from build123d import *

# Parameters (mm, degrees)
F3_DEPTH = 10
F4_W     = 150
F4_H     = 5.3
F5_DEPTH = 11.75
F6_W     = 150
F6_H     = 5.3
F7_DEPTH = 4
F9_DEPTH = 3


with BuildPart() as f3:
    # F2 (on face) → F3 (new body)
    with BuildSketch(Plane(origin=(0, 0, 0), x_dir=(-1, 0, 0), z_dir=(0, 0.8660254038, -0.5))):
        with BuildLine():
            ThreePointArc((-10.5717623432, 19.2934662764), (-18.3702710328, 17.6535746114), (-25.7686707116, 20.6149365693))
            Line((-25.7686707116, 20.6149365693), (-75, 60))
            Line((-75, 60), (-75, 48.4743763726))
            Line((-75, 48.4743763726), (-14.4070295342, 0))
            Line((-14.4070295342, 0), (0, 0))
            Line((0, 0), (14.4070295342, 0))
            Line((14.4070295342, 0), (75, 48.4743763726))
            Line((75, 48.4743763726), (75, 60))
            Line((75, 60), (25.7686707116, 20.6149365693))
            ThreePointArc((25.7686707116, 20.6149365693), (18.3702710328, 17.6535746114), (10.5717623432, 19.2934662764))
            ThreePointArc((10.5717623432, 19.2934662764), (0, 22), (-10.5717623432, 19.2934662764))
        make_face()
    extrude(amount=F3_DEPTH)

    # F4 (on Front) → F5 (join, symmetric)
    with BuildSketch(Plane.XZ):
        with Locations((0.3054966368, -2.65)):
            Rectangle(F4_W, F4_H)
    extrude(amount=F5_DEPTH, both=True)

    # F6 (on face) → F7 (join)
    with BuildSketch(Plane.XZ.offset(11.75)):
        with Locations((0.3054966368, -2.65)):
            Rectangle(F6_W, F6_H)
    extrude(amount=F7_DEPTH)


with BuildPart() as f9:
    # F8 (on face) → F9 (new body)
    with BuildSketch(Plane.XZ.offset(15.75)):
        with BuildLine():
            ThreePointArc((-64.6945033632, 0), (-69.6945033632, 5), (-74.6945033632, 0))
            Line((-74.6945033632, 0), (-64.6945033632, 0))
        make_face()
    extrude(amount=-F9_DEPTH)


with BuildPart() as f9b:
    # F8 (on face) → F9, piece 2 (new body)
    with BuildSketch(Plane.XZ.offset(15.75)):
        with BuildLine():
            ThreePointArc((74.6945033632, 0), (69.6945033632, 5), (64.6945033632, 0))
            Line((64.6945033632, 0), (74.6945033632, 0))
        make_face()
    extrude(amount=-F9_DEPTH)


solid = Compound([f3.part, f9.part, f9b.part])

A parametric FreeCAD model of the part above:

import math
import FreeCAD as App
import Part
import Sketcher

V = App.Vector
Q = App.Units.Quantity


def add_polygon(sketch, points):
    """Adds a closed chain of lines whose ends are joined by coincident constraints."""
    first, n = sketch.GeometryCount, len(points)
    for a, b in zip(points, points[1:] + points[:1]):
        sketch.addGeometry(Part.LineSegment(App.Vector(*a, 0), App.Vector(*b, 0)), False)
    for i in range(n):
        sketch.addConstraint(Sketcher.Constraint("Coincident", first + i, 2, first + (i + 1) % n, 1))

doc = App.newDocument("Part")
body = doc.addObject("PartDesign::Body", "Body")

sketch1 = doc.addObject("Sketcher::SketchObject", "Sketch")
body.addObject(sketch1)
sketch1.Placement = App.Placement(V(0, 0, 0), App.Rotation(V(-1, 0, 0), V(0, 0.5, 0.866025404), V(0, 0.866025404, -0.5), "ZXY"))
sketch1.addGeometry(Part.ArcOfCircle(Part.Circle(V(-17, 31, 0), V(0, 0, 1), 14), math.radians(-129), math.radians(-61)), False)
sketch1.addGeometry(Part.LineSegment(V(-26, 21, 0), V(-75, 60, 0)), False)
sketch1.addGeometry(Part.LineSegment(V(-75, 60, 0), V(-75, 48, 0)), False)
sketch1.addGeometry(Part.LineSegment(V(-75, 48, 0), V(-14, 0, 0)), False)
sketch1.addGeometry(Part.LineSegment(V(-14, 0, 0), V(14, 0, 0)), False)
sketch1.addGeometry(Part.LineSegment(V(14, 0, 0), V(75, 48, 0)), False)
sketch1.addGeometry(Part.LineSegment(V(75, 48, 0), V(75, 60, 0)), False)
sketch1.addGeometry(Part.LineSegment(V(75, 60, 0), V(26, 21, 0)), False)
sketch1.addGeometry(Part.ArcOfCircle(Part.Circle(V(17, 31, 0), V(0, 0, 1), 14), math.radians(-119), math.radians(-51)), False)
sketch1.addGeometry(Part.ArcOfCircle(Part.Circle(V(0, 0, 0), V(0, 0, 1), 22), math.radians(61), math.radians(119)), False)
sketch1.addConstraint(Sketcher.Constraint("Tangent", 0, 1, 1, 1))
sketch1.addConstraint(Sketcher.Constraint("Coincident", 1, 2, 2, 1))
sketch1.addConstraint(Sketcher.Constraint("Coincident", 2, 2, 3, 1))
sketch1.addConstraint(Sketcher.Constraint("Coincident", 3, 2, 4, 1))
sketch1.addConstraint(Sketcher.Constraint("Coincident", 4, 2, 5, 1))
sketch1.addConstraint(Sketcher.Constraint("Coincident", 5, 2, 6, 1))
sketch1.addConstraint(Sketcher.Constraint("Coincident", 6, 2, 7, 1))
sketch1.addConstraint(Sketcher.Constraint("Tangent", 7, 2, 8, 2))
sketch1.addConstraint(Sketcher.Constraint("Tangent", 8, 1, 9, 1))
sketch1.addConstraint(Sketcher.Constraint("Tangent", 9, 2, 0, 2))
sketch1.addConstraint(Sketcher.Constraint("Vertical", 2))
sketch1.addConstraint(Sketcher.Constraint("Horizontal", 4))
sketch1.addConstraint(Sketcher.Constraint("Vertical", 6))
sketch1.addConstraint(Sketcher.Constraint("Coincident", 9, 3, -1, 1))
sketch1.addConstraint(Sketcher.Constraint("Equal", 0, 8))
sketch1.addConstraint(Sketcher.Constraint("Symmetric", 3, 2, 4, 2, -1, 1))
sketch1.addConstraint(Sketcher.Constraint("Symmetric", 2, 2, 5, 2, -2))
sketch1.addConstraint(Sketcher.Constraint("Symmetric", 0, 1, 7, 2, -2))
sketch1.addConstraint(Sketcher.Constraint("Parallel", 1, 3))
sketch1.addConstraint(Sketcher.Constraint("Radius", 9, Q("22 mm")))
sketch1.addConstraint(Sketcher.Constraint("Radius", 0, Q("13.75 mm")))
sketch1.addConstraint(Sketcher.Constraint("DistanceX", 1, 2, -1, 1, Q("75 mm")))
sketch1.addConstraint(Sketcher.Constraint("DistanceY", -1, 1, 1, 2, Q("60 mm")))
sketch1.addConstraint(Sketcher.Constraint("DistanceX", 4, 1, 4, 2, Q("28.814059 mm")))
sketch1.addConstraint(Sketcher.Constraint("DistanceX", 0, 1, 4, 2, Q("40.1757 mm")))
pad1 = doc.addObject("PartDesign::Pad", "Pad")
body.addObject(pad1)
pad1.Profile = sketch1
pad1.Length = 10

sketch2 = doc.addObject("Sketcher::SketchObject", "Sketch001")
body.addObject(sketch2)
sketch2.AttachmentSupport = (doc.XZ_Plane, [""])
sketch2.MapMode = "FlatFace"
add_polygon(sketch2, [(-75, 0), (-75, -5), (75, -5), (75, 0)])
sketch2.addConstraint(Sketcher.Constraint("Vertical", 0))
sketch2.addConstraint(Sketcher.Constraint("Horizontal", 1))
sketch2.addConstraint(Sketcher.Constraint("Vertical", 2))
sketch2.addConstraint(Sketcher.Constraint("Horizontal", 3))
sketch2.addConstraint(Sketcher.Constraint("PointOnObject", 2, 2, -1))
sketch2.addConstraint(Sketcher.Constraint("DistanceX", 1, 1, 1, 2, Q("150 mm")))
sketch2.addConstraint(Sketcher.Constraint("DistanceY", 0, 2, 0, 1, Q("5.3 mm")))
sketch2.addConstraint(Sketcher.Constraint("DistanceX", 0, 2, -1, 1, Q("74.694503 mm")))
pad2 = doc.addObject("PartDesign::Pad", "Pad001")
body.addObject(pad2)
pad2.Profile = sketch2
pad2.Length = 23.5
pad2.Midplane = True

sketch3 = doc.addObject("Sketcher::SketchObject", "Sketch002")
body.addObject(sketch3)
sketch3.AttachmentSupport = (doc.XZ_Plane, [""])
sketch3.MapMode = "FlatFace"
sketch3.AttachmentOffset = App.Placement(V(0, 0, 11.75), App.Rotation())
add_polygon(sketch3, [(-75, 0), (-75, -5), (75, -5), (75, 0)])
sketch3.addConstraint(Sketcher.Constraint("Vertical", 0))
sketch3.addConstraint(Sketcher.Constraint("Horizontal", 1))
sketch3.addConstraint(Sketcher.Constraint("Vertical", 2))
sketch3.addConstraint(Sketcher.Constraint("Horizontal", 3))
sketch3.addConstraint(Sketcher.Constraint("PointOnObject", 2, 2, -1))
sketch3.addConstraint(Sketcher.Constraint("DistanceX", 1, 1, 1, 2, Q("150 mm")))
sketch3.addConstraint(Sketcher.Constraint("DistanceY", 0, 2, 0, 1, Q("5.3 mm")))
sketch3.addConstraint(Sketcher.Constraint("DistanceX", 0, 2, -1, 1, Q("74.694503 mm")))
pad3 = doc.addObject("PartDesign::Pad", "Pad002")
body.addObject(pad3)
pad3.Profile = sketch3
pad3.Length = 4
body2 = doc.addObject("PartDesign::Body", "Body001")

sketch4 = doc.addObject("Sketcher::SketchObject", "Sketch003")
body2.addObject(sketch4)
sketch4.AttachmentSupport = (doc.getObject("XZ_Plane001"), [""])
sketch4.MapMode = "FlatFace"
sketch4.AttachmentOffset = App.Placement(V(0, 0, 15.75), App.Rotation())
sketch4.addGeometry(Part.ArcOfCircle(Part.Circle(V(-70, 0, 0), V(0, 0, 1), 5), math.radians(0), math.radians(180)), False)
sketch4.addGeometry(Part.LineSegment(V(-75, 0, 0), V(-65, 0, 0)), False)
sketch4.addConstraint(Sketcher.Constraint("Coincident", 0, 1, 1, 2))
sketch4.addConstraint(Sketcher.Constraint("Coincident", 1, 1, 0, 2))
sketch4.addConstraint(Sketcher.Constraint("Horizontal", 1))
sketch4.addConstraint(Sketcher.Constraint("PointOnObject", 0, 3, -1))
sketch4.addConstraint(Sketcher.Constraint("PointOnObject", 0, 1, -1))
sketch4.addConstraint(Sketcher.Constraint("Radius", 0, Q("5 mm")))
sketch4.addConstraint(Sketcher.Constraint("DistanceX", 0, 3, -1, 1, Q("69.694503 mm")))
pad4 = doc.addObject("PartDesign::Pad", "Pad003")
body2.addObject(pad4)
pad4.Profile = sketch4
pad4.Length = 3
pad4.Reversed = True
body3 = doc.addObject("PartDesign::Body", "Body002")

sketch5 = doc.addObject("Sketcher::SketchObject", "Sketch004")
body3.addObject(sketch5)
sketch5.AttachmentSupport = (doc.getObject("XZ_Plane002"), [""])
sketch5.MapMode = "FlatFace"
sketch5.AttachmentOffset = App.Placement(V(0, 0, 15.75), App.Rotation())
sketch5.addGeometry(Part.ArcOfCircle(Part.Circle(V(70, 0, 0), V(0, 0, 1), 5), math.radians(0), math.radians(180)), False)
sketch5.addGeometry(Part.LineSegment(V(65, 0, 0), V(75, 0, 0)), False)
sketch5.addConstraint(Sketcher.Constraint("Coincident", 0, 1, 1, 2))
sketch5.addConstraint(Sketcher.Constraint("Coincident", 1, 1, 0, 2))
sketch5.addConstraint(Sketcher.Constraint("Horizontal", 1))
sketch5.addConstraint(Sketcher.Constraint("PointOnObject", 0, 3, -1))
sketch5.addConstraint(Sketcher.Constraint("PointOnObject", 0, 1, -1))
sketch5.addConstraint(Sketcher.Constraint("Radius", 0, Q("5 mm")))
sketch5.addConstraint(Sketcher.Constraint("DistanceX", -1, 1, 0, 3, Q("69.694503 mm")))
pad5 = doc.addObject("PartDesign::Pad", "Pad004")
body3.addObject(pad5)
pad5.Profile = sketch5
pad5.Length = 3
pad5.Reversed = True

doc.recompute()
